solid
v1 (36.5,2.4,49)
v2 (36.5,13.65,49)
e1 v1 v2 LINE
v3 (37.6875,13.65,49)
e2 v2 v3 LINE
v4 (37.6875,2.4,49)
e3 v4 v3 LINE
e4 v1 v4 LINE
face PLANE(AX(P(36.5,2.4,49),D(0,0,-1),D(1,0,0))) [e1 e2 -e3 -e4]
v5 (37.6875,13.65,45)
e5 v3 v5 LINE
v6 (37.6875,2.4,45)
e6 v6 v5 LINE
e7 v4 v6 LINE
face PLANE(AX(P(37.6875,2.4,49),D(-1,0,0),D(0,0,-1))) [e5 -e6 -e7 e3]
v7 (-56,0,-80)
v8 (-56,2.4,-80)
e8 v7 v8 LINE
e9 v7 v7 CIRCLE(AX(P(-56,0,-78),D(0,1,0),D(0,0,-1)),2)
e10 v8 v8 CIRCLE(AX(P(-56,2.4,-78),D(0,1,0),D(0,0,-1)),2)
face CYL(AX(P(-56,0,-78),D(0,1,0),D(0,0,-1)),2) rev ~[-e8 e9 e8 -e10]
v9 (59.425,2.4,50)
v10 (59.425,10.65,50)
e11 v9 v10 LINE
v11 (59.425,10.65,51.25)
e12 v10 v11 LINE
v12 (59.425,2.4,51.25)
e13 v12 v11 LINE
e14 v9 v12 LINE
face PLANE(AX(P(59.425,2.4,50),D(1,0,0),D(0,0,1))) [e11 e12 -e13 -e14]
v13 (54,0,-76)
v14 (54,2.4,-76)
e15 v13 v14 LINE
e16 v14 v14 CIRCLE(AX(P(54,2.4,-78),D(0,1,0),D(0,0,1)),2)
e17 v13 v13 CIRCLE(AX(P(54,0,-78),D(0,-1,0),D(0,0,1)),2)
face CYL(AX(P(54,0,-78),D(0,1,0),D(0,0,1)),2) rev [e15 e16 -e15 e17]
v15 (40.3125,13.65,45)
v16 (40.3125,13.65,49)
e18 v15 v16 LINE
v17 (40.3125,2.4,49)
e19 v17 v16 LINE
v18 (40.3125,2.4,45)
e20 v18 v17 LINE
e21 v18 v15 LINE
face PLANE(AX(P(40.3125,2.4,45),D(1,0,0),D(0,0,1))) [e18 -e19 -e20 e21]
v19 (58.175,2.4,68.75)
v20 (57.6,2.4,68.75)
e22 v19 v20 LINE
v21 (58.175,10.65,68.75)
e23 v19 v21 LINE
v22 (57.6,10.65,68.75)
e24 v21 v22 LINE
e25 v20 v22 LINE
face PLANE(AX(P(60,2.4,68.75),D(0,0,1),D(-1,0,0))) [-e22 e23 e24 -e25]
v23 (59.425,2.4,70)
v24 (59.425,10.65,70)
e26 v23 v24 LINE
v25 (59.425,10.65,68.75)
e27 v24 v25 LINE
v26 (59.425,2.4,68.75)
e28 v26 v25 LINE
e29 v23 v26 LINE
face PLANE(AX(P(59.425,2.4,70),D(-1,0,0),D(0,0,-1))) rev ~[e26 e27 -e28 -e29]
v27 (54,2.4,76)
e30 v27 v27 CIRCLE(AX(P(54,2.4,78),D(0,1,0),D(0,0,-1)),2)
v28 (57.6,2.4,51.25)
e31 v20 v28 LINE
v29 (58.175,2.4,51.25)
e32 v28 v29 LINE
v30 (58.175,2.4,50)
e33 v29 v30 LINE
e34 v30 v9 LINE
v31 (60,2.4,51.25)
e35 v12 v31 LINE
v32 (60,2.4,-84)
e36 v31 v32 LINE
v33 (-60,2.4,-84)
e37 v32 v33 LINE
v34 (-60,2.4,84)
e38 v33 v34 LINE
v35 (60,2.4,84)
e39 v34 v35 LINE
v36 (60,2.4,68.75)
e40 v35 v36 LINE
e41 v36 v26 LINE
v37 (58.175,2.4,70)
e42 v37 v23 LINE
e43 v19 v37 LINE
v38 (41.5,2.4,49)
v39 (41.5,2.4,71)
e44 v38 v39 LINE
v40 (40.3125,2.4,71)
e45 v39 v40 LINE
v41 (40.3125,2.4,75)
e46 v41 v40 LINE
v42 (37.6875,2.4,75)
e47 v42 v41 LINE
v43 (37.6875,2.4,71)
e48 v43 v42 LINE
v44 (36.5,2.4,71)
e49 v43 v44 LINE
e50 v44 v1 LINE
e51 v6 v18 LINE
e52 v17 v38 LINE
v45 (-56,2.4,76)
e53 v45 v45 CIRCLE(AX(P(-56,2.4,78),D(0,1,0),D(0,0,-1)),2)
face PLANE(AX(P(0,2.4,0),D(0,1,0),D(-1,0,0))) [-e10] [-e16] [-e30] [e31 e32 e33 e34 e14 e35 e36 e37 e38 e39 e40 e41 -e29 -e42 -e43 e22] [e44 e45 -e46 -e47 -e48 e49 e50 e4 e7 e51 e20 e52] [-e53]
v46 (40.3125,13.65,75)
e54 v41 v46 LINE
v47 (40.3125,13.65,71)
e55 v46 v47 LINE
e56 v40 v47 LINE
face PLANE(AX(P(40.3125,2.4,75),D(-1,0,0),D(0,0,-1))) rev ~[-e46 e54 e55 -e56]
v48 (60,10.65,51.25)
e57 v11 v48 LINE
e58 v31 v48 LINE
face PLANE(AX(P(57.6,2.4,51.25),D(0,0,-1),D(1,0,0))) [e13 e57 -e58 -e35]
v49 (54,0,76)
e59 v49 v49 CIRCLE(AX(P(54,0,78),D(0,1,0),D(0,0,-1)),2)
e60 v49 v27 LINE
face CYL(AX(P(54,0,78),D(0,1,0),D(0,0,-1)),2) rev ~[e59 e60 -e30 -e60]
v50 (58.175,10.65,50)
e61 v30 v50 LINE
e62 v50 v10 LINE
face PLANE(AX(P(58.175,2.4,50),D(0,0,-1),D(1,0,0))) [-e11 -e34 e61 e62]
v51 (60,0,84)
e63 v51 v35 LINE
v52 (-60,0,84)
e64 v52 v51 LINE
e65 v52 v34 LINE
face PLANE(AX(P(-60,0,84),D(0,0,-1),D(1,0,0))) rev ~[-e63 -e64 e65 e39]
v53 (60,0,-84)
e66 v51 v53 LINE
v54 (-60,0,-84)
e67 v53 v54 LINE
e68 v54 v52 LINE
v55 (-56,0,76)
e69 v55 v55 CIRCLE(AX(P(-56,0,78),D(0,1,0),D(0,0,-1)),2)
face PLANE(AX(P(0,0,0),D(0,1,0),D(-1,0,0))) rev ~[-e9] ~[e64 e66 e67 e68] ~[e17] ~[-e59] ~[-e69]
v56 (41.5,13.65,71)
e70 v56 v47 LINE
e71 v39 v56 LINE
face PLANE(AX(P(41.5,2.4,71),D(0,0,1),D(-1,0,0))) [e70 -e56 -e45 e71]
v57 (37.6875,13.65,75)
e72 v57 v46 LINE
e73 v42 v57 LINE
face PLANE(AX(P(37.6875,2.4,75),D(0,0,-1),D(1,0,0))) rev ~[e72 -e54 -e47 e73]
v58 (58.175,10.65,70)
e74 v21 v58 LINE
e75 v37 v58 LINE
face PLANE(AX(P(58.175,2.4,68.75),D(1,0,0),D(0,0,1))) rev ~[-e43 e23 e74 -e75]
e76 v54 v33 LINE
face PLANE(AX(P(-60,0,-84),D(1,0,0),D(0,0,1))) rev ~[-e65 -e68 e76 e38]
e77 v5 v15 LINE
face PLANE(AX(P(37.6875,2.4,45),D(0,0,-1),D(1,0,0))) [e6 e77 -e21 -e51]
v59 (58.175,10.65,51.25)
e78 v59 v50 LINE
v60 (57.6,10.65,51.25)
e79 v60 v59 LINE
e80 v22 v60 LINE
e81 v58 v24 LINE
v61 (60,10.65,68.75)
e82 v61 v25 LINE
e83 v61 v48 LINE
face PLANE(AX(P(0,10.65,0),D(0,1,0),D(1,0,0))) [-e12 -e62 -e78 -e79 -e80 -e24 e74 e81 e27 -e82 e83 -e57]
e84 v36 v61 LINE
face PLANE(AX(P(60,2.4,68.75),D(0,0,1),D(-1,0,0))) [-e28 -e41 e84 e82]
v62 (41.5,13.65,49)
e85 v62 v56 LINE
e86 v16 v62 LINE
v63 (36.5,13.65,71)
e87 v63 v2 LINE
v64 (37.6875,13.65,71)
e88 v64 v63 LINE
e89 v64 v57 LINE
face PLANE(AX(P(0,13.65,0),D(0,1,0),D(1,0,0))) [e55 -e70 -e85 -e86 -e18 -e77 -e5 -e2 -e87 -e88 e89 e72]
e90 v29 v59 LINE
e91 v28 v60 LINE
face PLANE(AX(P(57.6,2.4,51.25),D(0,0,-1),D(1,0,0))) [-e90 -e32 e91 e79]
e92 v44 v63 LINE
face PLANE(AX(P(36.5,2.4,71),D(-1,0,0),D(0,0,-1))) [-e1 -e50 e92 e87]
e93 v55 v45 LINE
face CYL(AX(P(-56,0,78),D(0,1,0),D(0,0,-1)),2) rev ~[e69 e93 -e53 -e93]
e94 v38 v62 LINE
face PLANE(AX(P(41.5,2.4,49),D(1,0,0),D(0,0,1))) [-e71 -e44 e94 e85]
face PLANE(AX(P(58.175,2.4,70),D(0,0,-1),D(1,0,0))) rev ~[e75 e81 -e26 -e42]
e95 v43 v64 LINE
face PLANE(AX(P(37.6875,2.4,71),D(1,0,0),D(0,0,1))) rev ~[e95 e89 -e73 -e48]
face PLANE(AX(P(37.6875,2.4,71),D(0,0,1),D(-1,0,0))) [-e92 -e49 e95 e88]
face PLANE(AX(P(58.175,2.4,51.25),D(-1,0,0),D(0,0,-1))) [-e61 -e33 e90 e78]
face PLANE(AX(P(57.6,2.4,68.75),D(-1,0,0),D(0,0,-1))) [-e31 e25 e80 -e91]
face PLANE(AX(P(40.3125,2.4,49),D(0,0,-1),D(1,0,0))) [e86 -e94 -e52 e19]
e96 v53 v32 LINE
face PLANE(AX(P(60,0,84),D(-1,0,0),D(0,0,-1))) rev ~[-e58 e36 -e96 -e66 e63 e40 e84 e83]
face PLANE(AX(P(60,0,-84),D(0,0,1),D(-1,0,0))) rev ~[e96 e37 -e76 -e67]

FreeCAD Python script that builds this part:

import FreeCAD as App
import Part
import Sketcher

V = App.Vector

doc = App.newDocument("Part")
body = doc.addObject("PartDesign::Body", "Body")

# Sketch on XZ plane
sketch1 = body.newObject("Sketcher::SketchObject", "Sketch")
sketch1.AttachmentSupport = (doc.getObject("XZ_Plane"), [""])
sketch1.MapMode = "FlatFace"
sketch1.addGeometry([
    Part.LineSegment(V(60, 84, 0), V(60, -84, 0)),
    Part.LineSegment(V(60, -84, 0), V(-60, -84, 0)),
    Part.LineSegment(V(-60, -84, 0), V(-60, 84, 0)),
    Part.LineSegment(V(-60, 84, 0), V(60, 84, 0)),
], False)
sketch1.addConstraint([
    Sketcher.Constraint("Coincident", 0, 2, 1, 1),
    Sketcher.Constraint("Coincident", 1, 2, 2, 1),
    Sketcher.Constraint("Coincident", 2, 2, 3, 1),
    Sketcher.Constraint("Coincident", 3, 2, 0, 1),
    Sketcher.Constraint("Vertical", 0),
    Sketcher.Constraint("Horizontal", 1),
    Sketcher.Constraint("Vertical", 2),
    Sketcher.Constraint("Horizontal", 3),
    Sketcher.Constraint("Symmetric", 0, 2, 2, 2, -1, 1),
    Sketcher.Constraint("DistanceX", 1, 2, 1, 1, 120.0),
    Sketcher.Constraint("DistanceY", 0, 2, 0, 1, 168.0),
])
pad1 = body.newObject("PartDesign::Pad", "Pad")
pad1.Profile = sketch1
pad1.Length = 2.4
pad1.Reversed = True

# Sketch on XZ plane
sketch2 = body.newObject("Sketcher::SketchObject", "Sketch001")
sketch2.AttachmentSupport = (doc.getObject("XZ_Plane"), [""])
sketch2.MapMode = "FlatFace"
sketch2.AttachmentOffset = App.Placement(V(0, 0, -2.4), App.Rotation())
sketch2.addGeometry([
    Part.LineSegment(V(57.6, 68.8, 0), V(60, 68.8, 0)),
    Part.LineSegment(V(60, 68.8, 0), V(60, 51.2, 0)),
    Part.LineSegment(V(60, 51.2, 0), V(57.6, 51.2, 0)),
    Part.LineSegment(V(57.6, 51.2, 0), V(57.6, 68.8, 0)),
], False)
sketch2.addConstraint([
    Sketcher.Constraint("Coincident", 0, 2, 1, 1),
    Sketcher.Constraint("Coincident", 1, 2, 2, 1),
    Sketcher.Constraint("Coincident", 2, 2, 3, 1),
    Sketcher.Constraint("Coincident", 3, 2, 0, 1),
    Sketcher.Constraint("Horizontal", 0),
    Sketcher.Constraint("Vertical", 1),
    Sketcher.Constraint("Horizontal", 2),
    Sketcher.Constraint("Vertical", 3),
    Sketcher.Constraint("DistanceX", 0, 1, 0, 2, 2.4),
    Sketcher.Constraint("DistanceY", 1, 2, 1, 1, 17.5),
    Sketcher.Constraint("DistanceX", -1, 1, 0, 2, 60.0),
    Sketcher.Constraint("DistanceY", -1, 1, 0, 2, 68.75),
])
pad2 = body.newObject("PartDesign::Pad", "Pad001")
pad2.Profile = sketch2
pad2.Length = 8.25
pad2.Reversed = True

# Sketch on XZ plane
sketch3 = body.newObject("Sketcher::SketchObject", "Sketch002")
sketch3.AttachmentSupport = (doc.getObject("XZ_Plane"), [""])
sketch3.MapMode = "FlatFace"
sketch3.AttachmentOffset = App.Placement(V(0, 0, -2.4), App.Rotation())
sketch3.addGeometry([
    Part.LineSegment(V(58.2, 51.2, 0), V(59.4, 51.2, 0)),  # 0
    Part.LineSegment(V(59.4, 51.2, 0), V(59.4, 50, 0)),  # 1
    Part.LineSegment(V(59.4, 50, 0), V(58.2, 50, 0)),  # 2
    Part.LineSegment(V(58.2, 50, 0), V(58.2, 51.2, 0)),  # 3
    Part.LineSegment(V(59.4, 70, 0), V(59.4, 68.8, 0)),  # 4
    Part.LineSegment(V(59.4, 68.8, 0), V(58.2, 68.8, 0)),  # 5
    Part.LineSegment(V(58.2, 68.8, 0), V(58.2, 70, 0)),  # 6
    Part.LineSegment(V(58.2, 70, 0), V(59.4, 70, 0)),  # 7
], False)
sketch3.addConstraint([
    Sketcher.Constraint("Coincident", 0, 2, 1, 1),
    Sketcher.Constraint("Coincident", 1, 2, 2, 1),
    Sketcher.Constraint("Coincident", 2, 2, 3, 1),
    Sketcher.Constraint("Coincident", 3, 2, 0, 1),
    Sketcher.Constraint("Coincident", 4, 2, 5, 1),
    Sketcher.Constraint("Coincident", 5, 2, 6, 1),
    Sketcher.Constraint("Coincident", 6, 2, 7, 1),
    Sketcher.Constraint("Coincident", 7, 2, 4, 1),
    Sketcher.Constraint("Horizontal", 0),
    Sketcher.Constraint("Vertical", 1),
    Sketcher.Constraint("Horizontal", 2),
    Sketcher.Constraint("Vertical", 3),
    Sketcher.Constraint("Vertical", 4),
    Sketcher.Constraint("Horizontal", 5),
    Sketcher.Constraint("Vertical", 6),
    Sketcher.Constraint("Horizontal", 7),
    Sketcher.Constraint("Vertical", 1, 2, 4, 2),
    Sketcher.Constraint("Vertical", 3, 2, 5, 2),
    Sketcher.Constraint("Equal", 7, 1),
    Sketcher.Constraint("Equal", 3, 4),
    Sketcher.Constraint("DistanceX", 0, 1, 0, 2, 1.25),
    Sketcher.Constraint("DistanceY", -1, 1, 1, 2, 50.0),
    Sketcher.Constraint("DistanceY", -1, 1, 6, 2, 70.0),
    Sketcher.Constraint("DistanceX", -1, 1, 0, 2, 59.425),
])
pad3 = body.newObject("PartDesign::Pad", "Pad002")
pad3.Profile = sketch3
pad3.Length = 8.25
pad3.Reversed = True

# Sketch on XZ plane
sketch4 = body.newObject("Sketcher::SketchObject", "Sketch003")
sketch4.AttachmentSupport = (doc.getObject("XZ_Plane"), [""])
sketch4.MapMode = "FlatFace"
sketch4.AttachmentOffset = App.Placement(V(0, 0, -2.4), App.Rotation())
sketch4.addGeometry([
    Part.LineSegment(V(40.3, 71, 0), V(41.5, 71, 0)),  # 0
    Part.LineSegment(V(41.5, 71, 0), V(41.5, 49, 0)),  # 1
    Part.LineSegment(V(41.5, 49, 0), V(40.3, 49, 0)),  # 2
    Part.LineSegment(V(40.3, 49, 0), V(40.3, 45, 0)),  # 3
    Part.LineSegment(V(40.3, 45, 0), V(37.7, 45, 0)),  # 4
    Part.LineSegment(V(37.7, 45, 0), V(37.7, 49, 0)),  # 5
    Part.LineSegment(V(37.7, 49, 0), V(36.5, 49, 0)),  # 6
    Part.LineSegment(V(36.5, 49, 0), V(36.5, 71, 0)),  # 7
    Part.LineSegment(V(36.5, 71, 0), V(37.7, 71, 0)),  # 8
    Part.LineSegment(V(37.7, 71, 0), V(37.7, 75, 0)),  # 9
    Part.LineSegment(V(37.7, 75, 0), V(40.3, 75, 0)),  # 10
    Part.LineSegment(V(40.3, 75, 0), V(40.3, 71, 0)),  # 11
], False)
sketch4.addConstraint([
    Sketcher.Constraint("Coincident", 0, 2, 1, 1),
    Sketcher.Constraint("Coincident", 1, 2, 2, 1),
    Sketcher.Constraint("Coincident", 2, 2, 3, 1),
    Sketcher.Constraint("Coincident", 3, 2, 4, 1),
    Sketcher.Constraint("Coincident", 4, 2, 5, 1),
    Sketcher.Constraint("Coincident", 5, 2, 6, 1),
    Sketcher.Constraint("Coincident", 6, 2, 7, 1),
    Sketcher.Constraint("Coincident", 7, 2, 8, 1),
    Sketcher.Constraint("Coincident", 8, 2, 9, 1),
    Sketcher.Constraint("Coincident", 9, 2, 10, 1),
    Sketcher.Constraint("Coincident", 10, 2, 11, 1),
    Sketcher.Constraint("Coincident", 11, 2, 0, 1),
    Sketcher.Constraint("Horizontal", 0),
    Sketcher.Constraint("Vertical", 1),
    Sketcher.Constraint("Horizontal", 2),
    Sketcher.Constraint("Vertical", 3),
    Sketcher.Constraint("Horizontal", 4),
    Sketcher.Constraint("Vertical", 5),
    Sketcher.Constraint("Horizontal", 6),
    Sketcher.Constraint("Vertical", 7),
    Sketcher.Constraint("Horizontal", 8),
    Sketcher.Constraint("Vertical", 9),
    Sketcher.Constraint("Horizontal", 10),
    Sketcher.Constraint("Vertical", 11),
    Sketcher.Constraint("Horizontal", 2, 2, 5, 2),
    Sketcher.Constraint("Horizontal", 0, 2, 7, 2),
    Sketcher.Constraint("Vertical", 5, 2, 8, 2),
    Sketcher.Constraint("Vertical", 3, 2, 10, 2),
    Sketcher.Constraint("Equal", 2, 6),
    Sketcher.Constraint("Equal", 5, 9),
    Sketcher.Constraint("DistanceY", 1, 2, 1, 1, 22.0),
    Sketcher.Constraint("DistanceX", 6, 2, 1, 2, 5.0),
    Sketcher.Constraint("DistanceX", 4, 2, 4, 1, 2.625),
    Sketcher.Constraint("DistanceY", 3, 2, 3, 1, 4.0),
    Sketcher.Constraint("DistanceY", -1, 1, 0, 2, 71.0),
    Sketcher.Constraint("DistanceX", -1, 1, 0, 2, 41.5),
])
pad4 = body.newObject("PartDesign::Pad", "Pad003")
pad4.Profile = sketch4
pad4.Length = 11.25
pad4.Reversed = True

# Sketch on XZ plane
sketch5 = body.newObject("Sketcher::SketchObject", "Sketch004")
sketch5.AttachmentSupport = (doc.getObject("XZ_Plane"), [""])
sketch5.MapMode = "FlatFace"
sketch5.addGeometry([
    Part.Circle(V(-56, 78, 0), V(0, 0, 1), 2),
    Part.Circle(V(-56, -78, 0), V(0, 0, 1), 2),
], False)
sketch5.addConstraint([
    Sketcher.Constraint("Equal", 0, 1),
    Sketcher.Constraint("Symmetric", 0, 3, 1, 3, -1),
    Sketcher.Constraint("Diameter", 0, 4.0),
    Sketcher.Constraint("DistanceX", 0, 3, -1, 1, 56.0),
    Sketcher.Constraint("DistanceY", -1, 1, 0, 3, 78.0),
])
doc.recompute()
hole = body.newObject("PartDesign::Hole", "Hole")
hole.Profile = sketch5
hole.ThreadType = "None"
hole.Diameter = 4
hole.DepthType = "ThroughAll"

# Sketch on XZ plane
sketch6 = body.newObject("Sketcher::SketchObject", "Sketch005")
sketch6.AttachmentSupport = (doc.getObject("XZ_Plane"), [""])
sketch6.MapMode = "FlatFace"
sketch6.addGeometry(Part.Circle(V(54, 78, 0), V(0, 0, 1), 2), False)
sketch6.addConstraint([
    Sketcher.Constraint("Diameter", 0, 4.0),
    Sketcher.Constraint("DistanceX", -1, 1, 0, 3, 54.0),
    Sketcher.Constraint("DistanceY", -1, 1, 0, 3, 78.0),
])
doc.recompute()
hole2 = body.newObject("PartDesign::Hole", "Hole001")
hole2.Profile = sketch6
hole2.ThreadType = "None"
hole2.Diameter = 4
hole2.DepthType = "Dimension"
hole2.Depth = 10
hole2.DrillPoint = "Angled"
hole2.DrillPointAngle = 118
doc.recompute()

mirrored = body.newObject("PartDesign::Mirrored", "Mirrored")
mirrored.Originals = [hole2]
mirrored.MirrorPlane = (doc.getObject("XY_Plane"), [""])
body.Tip = mirrored

doc.recompute()
